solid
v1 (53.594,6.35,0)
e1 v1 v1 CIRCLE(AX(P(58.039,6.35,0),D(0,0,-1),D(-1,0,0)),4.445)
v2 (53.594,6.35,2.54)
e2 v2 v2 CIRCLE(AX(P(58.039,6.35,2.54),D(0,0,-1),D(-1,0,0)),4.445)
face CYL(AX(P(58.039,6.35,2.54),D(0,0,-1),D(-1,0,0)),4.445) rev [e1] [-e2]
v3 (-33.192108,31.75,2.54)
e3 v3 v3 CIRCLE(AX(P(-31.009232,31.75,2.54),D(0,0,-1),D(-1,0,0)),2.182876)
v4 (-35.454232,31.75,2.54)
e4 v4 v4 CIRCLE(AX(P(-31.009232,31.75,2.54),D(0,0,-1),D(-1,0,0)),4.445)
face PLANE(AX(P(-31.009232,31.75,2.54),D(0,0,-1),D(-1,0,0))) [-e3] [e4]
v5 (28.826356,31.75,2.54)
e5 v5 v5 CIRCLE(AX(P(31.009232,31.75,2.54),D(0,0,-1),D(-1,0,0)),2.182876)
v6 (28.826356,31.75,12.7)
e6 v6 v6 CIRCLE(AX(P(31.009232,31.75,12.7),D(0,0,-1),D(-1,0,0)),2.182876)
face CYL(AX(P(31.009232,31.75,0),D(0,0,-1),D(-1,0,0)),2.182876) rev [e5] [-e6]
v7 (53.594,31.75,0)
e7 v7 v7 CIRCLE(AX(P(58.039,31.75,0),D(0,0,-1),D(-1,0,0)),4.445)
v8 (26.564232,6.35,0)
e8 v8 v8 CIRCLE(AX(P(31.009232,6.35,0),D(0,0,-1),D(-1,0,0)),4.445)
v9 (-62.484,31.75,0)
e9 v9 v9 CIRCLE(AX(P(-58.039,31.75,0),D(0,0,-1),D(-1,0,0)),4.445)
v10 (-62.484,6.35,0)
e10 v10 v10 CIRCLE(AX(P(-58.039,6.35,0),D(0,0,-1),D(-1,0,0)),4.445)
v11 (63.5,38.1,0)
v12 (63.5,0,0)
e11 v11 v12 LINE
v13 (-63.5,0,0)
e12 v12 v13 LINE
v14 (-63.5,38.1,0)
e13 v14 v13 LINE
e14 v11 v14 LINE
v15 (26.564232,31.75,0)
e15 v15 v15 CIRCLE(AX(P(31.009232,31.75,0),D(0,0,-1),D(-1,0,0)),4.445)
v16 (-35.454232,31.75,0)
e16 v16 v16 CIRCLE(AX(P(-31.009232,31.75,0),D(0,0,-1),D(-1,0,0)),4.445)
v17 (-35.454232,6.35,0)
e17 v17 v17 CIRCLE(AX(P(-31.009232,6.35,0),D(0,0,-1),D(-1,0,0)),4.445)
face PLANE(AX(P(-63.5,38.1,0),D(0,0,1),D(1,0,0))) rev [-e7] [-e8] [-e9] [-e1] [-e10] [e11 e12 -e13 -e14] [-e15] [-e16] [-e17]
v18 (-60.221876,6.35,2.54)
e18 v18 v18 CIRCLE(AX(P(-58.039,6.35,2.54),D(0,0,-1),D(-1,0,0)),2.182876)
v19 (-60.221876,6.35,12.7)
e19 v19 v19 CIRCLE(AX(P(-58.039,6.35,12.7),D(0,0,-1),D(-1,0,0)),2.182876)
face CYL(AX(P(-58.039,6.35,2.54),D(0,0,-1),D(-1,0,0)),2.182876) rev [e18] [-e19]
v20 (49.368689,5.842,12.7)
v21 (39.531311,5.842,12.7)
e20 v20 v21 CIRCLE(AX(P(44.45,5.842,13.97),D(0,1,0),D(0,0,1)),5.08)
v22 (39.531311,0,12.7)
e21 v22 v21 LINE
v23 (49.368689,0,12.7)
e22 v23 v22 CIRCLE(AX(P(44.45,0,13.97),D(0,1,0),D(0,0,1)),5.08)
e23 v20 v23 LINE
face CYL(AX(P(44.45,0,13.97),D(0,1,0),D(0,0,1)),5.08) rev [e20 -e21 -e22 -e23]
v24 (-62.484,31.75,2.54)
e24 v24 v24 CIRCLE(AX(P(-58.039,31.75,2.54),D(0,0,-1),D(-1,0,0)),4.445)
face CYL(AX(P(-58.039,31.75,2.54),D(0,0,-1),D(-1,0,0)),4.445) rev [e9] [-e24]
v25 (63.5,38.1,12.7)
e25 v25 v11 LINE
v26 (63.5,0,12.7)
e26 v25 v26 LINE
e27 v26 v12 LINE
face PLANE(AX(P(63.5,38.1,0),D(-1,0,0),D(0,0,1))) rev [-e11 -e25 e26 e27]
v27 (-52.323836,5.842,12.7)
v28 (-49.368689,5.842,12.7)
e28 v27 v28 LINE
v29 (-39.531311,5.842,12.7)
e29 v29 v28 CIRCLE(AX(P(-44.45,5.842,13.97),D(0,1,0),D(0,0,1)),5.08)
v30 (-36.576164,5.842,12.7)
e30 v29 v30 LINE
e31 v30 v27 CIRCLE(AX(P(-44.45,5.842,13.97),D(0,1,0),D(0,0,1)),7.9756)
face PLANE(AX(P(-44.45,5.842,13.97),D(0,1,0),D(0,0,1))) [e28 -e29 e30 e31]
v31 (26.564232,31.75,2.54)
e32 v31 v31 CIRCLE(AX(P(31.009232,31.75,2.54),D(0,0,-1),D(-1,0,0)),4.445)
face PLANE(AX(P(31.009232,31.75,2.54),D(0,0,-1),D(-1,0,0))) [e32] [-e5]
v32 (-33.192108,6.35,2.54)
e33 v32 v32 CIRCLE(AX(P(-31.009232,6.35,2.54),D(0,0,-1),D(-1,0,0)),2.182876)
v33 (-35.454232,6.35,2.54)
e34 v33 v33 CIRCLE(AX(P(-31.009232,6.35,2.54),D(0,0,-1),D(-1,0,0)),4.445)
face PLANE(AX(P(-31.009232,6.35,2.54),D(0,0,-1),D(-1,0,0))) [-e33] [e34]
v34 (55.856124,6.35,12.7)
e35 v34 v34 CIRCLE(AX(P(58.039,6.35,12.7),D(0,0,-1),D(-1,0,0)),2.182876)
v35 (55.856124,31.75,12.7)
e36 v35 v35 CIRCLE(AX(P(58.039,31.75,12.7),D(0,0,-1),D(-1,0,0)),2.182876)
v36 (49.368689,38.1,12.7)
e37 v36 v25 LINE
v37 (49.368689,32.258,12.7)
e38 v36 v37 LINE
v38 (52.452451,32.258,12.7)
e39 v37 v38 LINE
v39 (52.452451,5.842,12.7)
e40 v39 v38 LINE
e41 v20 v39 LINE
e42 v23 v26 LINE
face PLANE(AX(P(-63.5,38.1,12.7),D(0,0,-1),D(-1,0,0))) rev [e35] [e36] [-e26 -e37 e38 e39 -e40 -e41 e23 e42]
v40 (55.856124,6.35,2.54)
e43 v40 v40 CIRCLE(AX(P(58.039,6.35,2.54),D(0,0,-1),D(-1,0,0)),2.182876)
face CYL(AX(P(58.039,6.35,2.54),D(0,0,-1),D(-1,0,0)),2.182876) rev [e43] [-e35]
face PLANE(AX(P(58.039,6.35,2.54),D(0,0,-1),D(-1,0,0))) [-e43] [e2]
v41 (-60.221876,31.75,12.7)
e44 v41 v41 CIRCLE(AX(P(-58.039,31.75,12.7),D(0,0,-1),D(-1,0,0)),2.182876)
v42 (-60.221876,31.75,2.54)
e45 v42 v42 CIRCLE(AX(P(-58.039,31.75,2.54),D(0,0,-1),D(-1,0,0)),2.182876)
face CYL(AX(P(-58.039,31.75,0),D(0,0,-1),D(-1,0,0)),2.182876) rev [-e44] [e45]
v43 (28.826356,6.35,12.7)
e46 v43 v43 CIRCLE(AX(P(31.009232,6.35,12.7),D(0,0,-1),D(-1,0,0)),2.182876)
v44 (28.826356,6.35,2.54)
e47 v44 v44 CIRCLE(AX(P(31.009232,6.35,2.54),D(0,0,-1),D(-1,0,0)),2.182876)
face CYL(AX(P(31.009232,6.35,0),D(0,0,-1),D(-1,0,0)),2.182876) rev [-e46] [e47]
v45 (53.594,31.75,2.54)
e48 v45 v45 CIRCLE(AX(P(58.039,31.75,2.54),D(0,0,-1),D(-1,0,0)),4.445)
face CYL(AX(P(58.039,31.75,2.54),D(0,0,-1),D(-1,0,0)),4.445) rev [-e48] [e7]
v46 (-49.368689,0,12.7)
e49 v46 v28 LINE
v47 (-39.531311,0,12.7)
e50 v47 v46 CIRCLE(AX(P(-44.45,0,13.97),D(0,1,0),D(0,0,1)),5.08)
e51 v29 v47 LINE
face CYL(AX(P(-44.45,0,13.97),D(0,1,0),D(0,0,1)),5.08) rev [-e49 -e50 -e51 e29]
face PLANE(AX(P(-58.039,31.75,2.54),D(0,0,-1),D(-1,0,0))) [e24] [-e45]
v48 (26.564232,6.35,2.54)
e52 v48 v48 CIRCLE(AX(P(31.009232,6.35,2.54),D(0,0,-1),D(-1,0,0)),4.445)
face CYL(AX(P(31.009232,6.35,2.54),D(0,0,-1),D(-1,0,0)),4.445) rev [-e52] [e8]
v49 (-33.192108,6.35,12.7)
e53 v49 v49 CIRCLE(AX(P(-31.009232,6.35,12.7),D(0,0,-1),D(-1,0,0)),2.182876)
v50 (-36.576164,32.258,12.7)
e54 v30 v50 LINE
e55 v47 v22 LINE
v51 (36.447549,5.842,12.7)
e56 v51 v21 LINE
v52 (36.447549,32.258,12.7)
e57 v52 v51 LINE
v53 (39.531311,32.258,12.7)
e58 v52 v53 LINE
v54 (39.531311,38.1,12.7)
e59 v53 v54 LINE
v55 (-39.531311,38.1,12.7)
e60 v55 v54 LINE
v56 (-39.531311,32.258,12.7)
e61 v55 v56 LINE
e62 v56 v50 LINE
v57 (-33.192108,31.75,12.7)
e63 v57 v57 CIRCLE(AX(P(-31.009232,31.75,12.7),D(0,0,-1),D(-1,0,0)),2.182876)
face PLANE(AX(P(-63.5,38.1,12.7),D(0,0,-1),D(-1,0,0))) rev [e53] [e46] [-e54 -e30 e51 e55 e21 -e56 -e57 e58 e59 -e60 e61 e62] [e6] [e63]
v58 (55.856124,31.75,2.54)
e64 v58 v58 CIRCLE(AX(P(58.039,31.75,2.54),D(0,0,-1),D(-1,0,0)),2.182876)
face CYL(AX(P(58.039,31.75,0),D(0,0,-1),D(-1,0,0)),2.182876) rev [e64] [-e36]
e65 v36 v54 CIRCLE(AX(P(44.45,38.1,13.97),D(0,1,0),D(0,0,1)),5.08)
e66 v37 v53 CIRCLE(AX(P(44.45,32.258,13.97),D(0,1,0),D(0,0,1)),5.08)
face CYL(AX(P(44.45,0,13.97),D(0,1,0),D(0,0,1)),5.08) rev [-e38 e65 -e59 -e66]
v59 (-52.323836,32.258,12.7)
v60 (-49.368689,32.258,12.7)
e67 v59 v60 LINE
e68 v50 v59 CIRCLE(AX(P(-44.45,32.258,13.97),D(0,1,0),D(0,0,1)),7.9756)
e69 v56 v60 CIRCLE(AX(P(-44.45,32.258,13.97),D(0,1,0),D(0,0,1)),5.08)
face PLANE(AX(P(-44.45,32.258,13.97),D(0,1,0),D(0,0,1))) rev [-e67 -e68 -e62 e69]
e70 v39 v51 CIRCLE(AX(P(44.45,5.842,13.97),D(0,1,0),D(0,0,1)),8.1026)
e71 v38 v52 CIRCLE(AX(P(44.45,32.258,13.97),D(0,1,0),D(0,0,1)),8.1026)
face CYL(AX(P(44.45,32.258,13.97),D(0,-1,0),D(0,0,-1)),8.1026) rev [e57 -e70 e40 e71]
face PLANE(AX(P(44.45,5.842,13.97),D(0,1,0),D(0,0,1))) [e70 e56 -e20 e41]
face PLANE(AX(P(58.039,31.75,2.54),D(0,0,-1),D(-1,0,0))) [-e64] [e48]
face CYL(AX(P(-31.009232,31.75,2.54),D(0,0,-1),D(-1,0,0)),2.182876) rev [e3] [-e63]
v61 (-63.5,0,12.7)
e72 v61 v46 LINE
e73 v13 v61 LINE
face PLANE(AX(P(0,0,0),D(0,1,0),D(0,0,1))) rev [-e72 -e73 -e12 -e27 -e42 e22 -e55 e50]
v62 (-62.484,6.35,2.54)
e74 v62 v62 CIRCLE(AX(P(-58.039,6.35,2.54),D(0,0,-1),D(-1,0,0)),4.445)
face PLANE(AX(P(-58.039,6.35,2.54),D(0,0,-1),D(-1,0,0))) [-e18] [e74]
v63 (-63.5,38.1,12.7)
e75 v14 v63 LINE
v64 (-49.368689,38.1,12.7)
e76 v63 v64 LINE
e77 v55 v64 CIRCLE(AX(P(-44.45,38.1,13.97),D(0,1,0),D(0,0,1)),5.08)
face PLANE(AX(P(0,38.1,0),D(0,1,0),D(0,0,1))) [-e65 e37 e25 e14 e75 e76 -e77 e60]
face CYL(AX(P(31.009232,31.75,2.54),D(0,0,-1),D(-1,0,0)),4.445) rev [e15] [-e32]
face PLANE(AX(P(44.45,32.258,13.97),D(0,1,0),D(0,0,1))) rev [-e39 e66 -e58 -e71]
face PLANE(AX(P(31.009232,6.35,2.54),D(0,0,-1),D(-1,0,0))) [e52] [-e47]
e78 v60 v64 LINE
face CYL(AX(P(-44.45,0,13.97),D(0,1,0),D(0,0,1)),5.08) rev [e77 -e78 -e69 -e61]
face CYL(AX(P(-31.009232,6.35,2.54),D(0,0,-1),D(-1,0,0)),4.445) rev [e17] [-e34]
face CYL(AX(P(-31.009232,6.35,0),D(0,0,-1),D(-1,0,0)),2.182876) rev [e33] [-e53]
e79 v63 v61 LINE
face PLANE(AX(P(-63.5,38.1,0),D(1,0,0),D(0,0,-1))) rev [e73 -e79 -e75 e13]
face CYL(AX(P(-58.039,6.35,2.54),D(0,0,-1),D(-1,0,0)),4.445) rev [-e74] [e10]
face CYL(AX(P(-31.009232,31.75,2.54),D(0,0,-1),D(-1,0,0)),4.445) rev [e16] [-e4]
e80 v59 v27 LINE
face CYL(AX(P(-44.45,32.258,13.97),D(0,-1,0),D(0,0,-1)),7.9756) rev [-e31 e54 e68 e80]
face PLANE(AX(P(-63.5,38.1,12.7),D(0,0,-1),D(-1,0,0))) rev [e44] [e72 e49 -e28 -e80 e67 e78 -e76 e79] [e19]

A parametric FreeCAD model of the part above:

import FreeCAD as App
import Part
import Sketcher
Q = App.Units.Quantity


def add_polygon(sketch, points):
    """Adds a closed chain of lines whose ends are joined by coincident constraints."""
    first, n = sketch.GeometryCount, len(points)
    for a, b in zip(points, points[1:] + points[:1]):
        sketch.addGeometry(Part.LineSegment(App.Vector(*a, 0), App.Vector(*b, 0)), False)
    for i in range(n):
        sketch.addConstraint(Sketcher.Constraint("Coincident", first + i, 2, first + (i + 1) % n, 1))

doc = App.newDocument("Part")
body = doc.addObject("PartDesign::Body", "Body")

# Sketch on XZ plane
sketch1 = doc.addObject("Sketcher::SketchObject", "Sketch")
body.addObject(sketch1)
sketch1.AttachmentSupport = (doc.XZ_Plane, [""])
sketch1.MapMode = "FlatFace"
add_polygon(sketch1, [(-64, 0), (-64, 13), (64, 13), (64, 0)])  # lines 0-3
sketch1.addConstraint([
    Sketcher.Constraint("Vertical", 0),
    Sketcher.Constraint("Horizontal", 1),
    Sketcher.Constraint("Vertical", 2),
    Sketcher.Constraint("Horizontal", 3),
    Sketcher.Constraint("Symmetric", 2, 2, 3, 2, -1, 1),
    Sketcher.Constraint("DistanceX", 1, 1, 1, 2, Q("5 in")),
    Sketcher.Constraint("DistanceY", 0, 1, 0, 2, Q("0.5 in")),
])
pad1 = doc.addObject("PartDesign::Pad", "Pad")
body.addObject(pad1)
pad1.Profile = sketch1
pad1.Length = Q("1.5 in")
pad1.Reversed = True

# Sketch on XY plane
sketch2 = doc.addObject("Sketcher::SketchObject", "Sketch001")
body.addObject(sketch2)
sketch2.AttachmentSupport = (doc.XY_Plane, [""])
sketch2.MapMode = "FlatFace"
sketch2.addGeometry([
    Part.Circle(App.Vector(58, 31.8, 0), App.Vector(0, 0, 1), 4.4),  # 0
    Part.Circle(App.Vector(58, 6.3, 0), App.Vector(0, 0, 1), 4.4),  # 1
    Part.Circle(App.Vector(31, 31.8, 0), App.Vector(0, 0, 1), 4.4),  # 2
    Part.Circle(App.Vector(31, 6.3, 0), App.Vector(0, 0, 1), 4.4),  # 3
    Part.Circle(App.Vector(-31, 31.8, 0), App.Vector(0, 0, 1), 4.4),  # 4
    Part.Circle(App.Vector(-31, 6.3, 0), App.Vector(0, 0, 1), 4.4),  # 5
    Part.Circle(App.Vector(-58, 31.8, 0), App.Vector(0, 0, 1), 4.4),  # 6
    Part.Circle(App.Vector(-58, 6.3, 0), App.Vector(0, 0, 1), 4.4),  # 7
], False)
sketch2.addConstraint([
    Sketcher.Constraint("Equal", 0, 1),
    Sketcher.Constraint("Equal", 1, 2),
    Sketcher.Constraint("Equal", 2, 3),
    Sketcher.Constraint("Equal", 3, 4),
    Sketcher.Constraint("Equal", 4, 5),
    Sketcher.Constraint("Equal", 5, 6),
    Sketcher.Constraint("Equal", 6, 7),
    Sketcher.Constraint("Symmetric", 2, 3, 4, 3, -2),
    Sketcher.Constraint("Symmetric", 3, 3, 5, 3, -2),
    Sketcher.Constraint("Symmetric", 0, 3, 6, 3, -2),
    Sketcher.Constraint("Symmetric", 1, 3, 7, 3, -2),
    Sketcher.Constraint("Horizontal", 0, 3, 2, 3),
    Sketcher.Constraint("Horizontal", 1, 3, 3, 3),
    Sketcher.Constraint("Vertical", 0, 3, 1, 3),
    Sketcher.Constraint("Vertical", 2, 3, 3, 3),
    Sketcher.Constraint("Diameter", 0, Q("0.35 in")),
    Sketcher.Constraint("DistanceY", 1, 3, 0, 3, Q("1 in")),
    Sketcher.Constraint("DistanceY", -1, 1, 0, 3, Q("1.25 in")),
    Sketcher.Constraint("DistanceX", 6, 3, 0, 3, Q("4.57 in")),
    Sketcher.Constraint("DistanceX", -1, 1, 2, 3, 31.009232),
])
pocket1 = doc.addObject("PartDesign::Pocket", "Pocket")
body.addObject(pocket1)
pocket1.Profile = sketch2
pocket1.Length = Q("0.1 in")
pocket1.Reversed = True

# Sketch on XZ plane
sketch3 = doc.addObject("Sketcher::SketchObject", "Sketch002")
body.addObject(sketch3)
sketch3.AttachmentSupport = (doc.XZ_Plane, [""])
sketch3.MapMode = "FlatFace"
sketch3.AttachmentOffset = App.Placement(App.Vector(0, 0, -0.75 * 25.4), App.Rotation())
sketch3.addGeometry([
    Part.Circle(App.Vector(-44, 14, 0), App.Vector(0, 0, 1), 8),
    Part.Circle(App.Vector(44, 14, 0), App.Vector(0, 0, 1), 8),
], False)
sketch3.addConstraint([
    Sketcher.Constraint("Symmetric", 0, 3, 1, 3, -2),
    Sketcher.Constraint("Diameter", 0, Q("0.628 in")),
    Sketcher.Constraint("Diameter", 1, Q("0.638 in")),
    Sketcher.Constraint("DistanceX", 0, 3, 1, 3, Q("3.5 in")),
    Sketcher.Constraint("DistanceY", -1, 1, 0, 3, Q("0.55 in")),
])
pocket2 = doc.addObject("PartDesign::Pocket", "Pocket001")
body.addObject(pocket2)
pocket2.Profile = sketch3
pocket2.Type = "TwoLengths"
pocket2.Length = Q("0.52 in")
pocket2.Length2 = Q("0.52 in")

# Sketch on XZ plane
sketch4 = doc.addObject("Sketcher::SketchObject", "Sketch003")
body.addObject(sketch4)
sketch4.AttachmentSupport = (doc.XZ_Plane, [""])
sketch4.MapMode = "FlatFace"
sketch4.AttachmentOffset = App.Placement(App.Vector(0, 0, -1.5 * 25.4), App.Rotation())
sketch4.addGeometry([
    Part.Circle(App.Vector(-44, 14, 0), App.Vector(0, 0, 1), 5),
    Part.Circle(App.Vector(44, 14, 0), App.Vector(0, 0, 1), 5),
], False)
sketch4.addConstraint([
    Sketcher.Constraint("Equal", 0, 1),
    Sketcher.Constraint("Symmetric", 0, 3, 1, 3, -2),
    Sketcher.Constraint("Diameter", 0, Q("0.4 in")),
    Sketcher.Constraint("DistanceX", 0, 3, 1, 3, Q("3.5 in")),
    Sketcher.Constraint("DistanceY", -1, 1, 0, 3, Q("0.55 in")),
])
pocket3 = doc.addObject("PartDesign::Pocket", "Pocket002")
body.addObject(pocket3)
pocket3.Profile = sketch4
pocket3.Length = Q("1.5 in")
pocket3.Reversed = True

# Sketch on XY plane
sketch5 = doc.addObject("Sketcher::SketchObject", "Sketch004")
body.addObject(sketch5)
sketch5.AttachmentSupport = (doc.XY_Plane, [""])
sketch5.MapMode = "FlatFace"
sketch5.addGeometry([
    Part.Circle(App.Vector(58, 31.8, 0), App.Vector(0, 0, 1), 2.2),  # 0
    Part.Circle(App.Vector(31, 31.8, 0), App.Vector(0, 0, 1), 2.2),  # 1
    Part.Circle(App.Vector(31, 6.3, 0), App.Vector(0, 0, 1), 2.2),  # 2
    Part.Circle(App.Vector(-31, 6.3, 0), App.Vector(0, 0, 1), 2.2),  # 3
    Part.Circle(App.Vector(-58, 31.8, 0), App.Vector(0, 0, 1), 2.2),  # 4
], False)
sketch5.addConstraint([
    Sketcher.Constraint("Equal", 0, 1),
    Sketcher.Constraint("Equal", 1, 2),
    Sketcher.Constraint("Equal", 2, 3),
    Sketcher.Constraint("Equal", 3, 4),
    Sketcher.Constraint("Symmetric", 2, 3, 3, 3, -2),
    Sketcher.Constraint("Symmetric", 0, 3, 4, 3, -2),
    Sketcher.Constraint("Horizontal", 0, 3, 1, 3),
    Sketcher.Constraint("Vertical", 1, 3, 2, 3),
    Sketcher.Constraint("DistanceY", 2, 3, 1, 3, Q("1 in")),
    Sketcher.Constraint("DistanceY", -1, 1, 0, 3, Q("1.25 in")),
    Sketcher.Constraint("DistanceX", 4, 3, 0, 3, Q("4.57 in")),
    Sketcher.Constraint("Diameter", 0, 4.365752),
    Sketcher.Constraint("DistanceX", -1, 1, 1, 3, 31.009232),
])
doc.recompute()
hole = doc.addObject("PartDesign::Hole", "Hole")
body.addObject(hole)
hole.Profile = sketch5
hole.ThreadType = "None"
hole.Diameter = 4.365752
hole.DepthType = "Dimension"
hole.Depth = Q("1 in")
hole.DrillPoint = "Angled"
hole.DrillPointAngle = 118
hole.Reversed = True

# Sketch on XY plane
sketch6 = doc.addObject("Sketcher::SketchObject", "Sketch005")
body.addObject(sketch6)
sketch6.AttachmentSupport = (doc.XY_Plane, [""])
sketch6.MapMode = "FlatFace"
sketch6.AttachmentOffset = App.Placement(App.Vector(0, 0, 0.1 * 25.4), App.Rotation())
sketch6.addGeometry([
    Part.Circle(App.Vector(58, 6.3, 0), App.Vector(0, 0, 1), 2.2),
    Part.Circle(App.Vector(-31, 31.8, 0), App.Vector(0, 0, 1), 2.2),
    Part.Circle(App.Vector(-58, 6.3, 0), App.Vector(0, 0, 1), 2.2),
], False)
sketch6.addConstraint([
    Sketcher.Constraint("Equal", 0, 1),
    Sketcher.Constraint("Equal", 1, 2),
    Sketcher.Constraint("Symmetric", 0, 3, 2, 3, -2),
    Sketcher.Constraint("DistanceY", 0, 3, 1, 3, Q("1 in")),
    Sketcher.Constraint("DistanceY", -1, 1, 0, 3, Q("0.25 in")),
    Sketcher.Constraint("DistanceX", 2, 3, 0, 3, Q("4.57 in")),
    Sketcher.Constraint("Diameter", 0, 4.365752),
    Sketcher.Constraint("DistanceX", 1, 3, -1, 1, 31.009232),
])
doc.recompute()
hole2 = doc.addObject("PartDesign::Hole", "Hole001")
body.addObject(hole2)
hole2.Profile = sketch6
hole2.ThreadType = "None"
hole2.Diameter = 4.365752
hole2.DepthType = "Dimension"
hole2.Depth = Q("1 in")
hole2.DrillPoint = "Angled"
hole2.DrillPointAngle = 118
hole2.Reversed = True

doc.recompute()
